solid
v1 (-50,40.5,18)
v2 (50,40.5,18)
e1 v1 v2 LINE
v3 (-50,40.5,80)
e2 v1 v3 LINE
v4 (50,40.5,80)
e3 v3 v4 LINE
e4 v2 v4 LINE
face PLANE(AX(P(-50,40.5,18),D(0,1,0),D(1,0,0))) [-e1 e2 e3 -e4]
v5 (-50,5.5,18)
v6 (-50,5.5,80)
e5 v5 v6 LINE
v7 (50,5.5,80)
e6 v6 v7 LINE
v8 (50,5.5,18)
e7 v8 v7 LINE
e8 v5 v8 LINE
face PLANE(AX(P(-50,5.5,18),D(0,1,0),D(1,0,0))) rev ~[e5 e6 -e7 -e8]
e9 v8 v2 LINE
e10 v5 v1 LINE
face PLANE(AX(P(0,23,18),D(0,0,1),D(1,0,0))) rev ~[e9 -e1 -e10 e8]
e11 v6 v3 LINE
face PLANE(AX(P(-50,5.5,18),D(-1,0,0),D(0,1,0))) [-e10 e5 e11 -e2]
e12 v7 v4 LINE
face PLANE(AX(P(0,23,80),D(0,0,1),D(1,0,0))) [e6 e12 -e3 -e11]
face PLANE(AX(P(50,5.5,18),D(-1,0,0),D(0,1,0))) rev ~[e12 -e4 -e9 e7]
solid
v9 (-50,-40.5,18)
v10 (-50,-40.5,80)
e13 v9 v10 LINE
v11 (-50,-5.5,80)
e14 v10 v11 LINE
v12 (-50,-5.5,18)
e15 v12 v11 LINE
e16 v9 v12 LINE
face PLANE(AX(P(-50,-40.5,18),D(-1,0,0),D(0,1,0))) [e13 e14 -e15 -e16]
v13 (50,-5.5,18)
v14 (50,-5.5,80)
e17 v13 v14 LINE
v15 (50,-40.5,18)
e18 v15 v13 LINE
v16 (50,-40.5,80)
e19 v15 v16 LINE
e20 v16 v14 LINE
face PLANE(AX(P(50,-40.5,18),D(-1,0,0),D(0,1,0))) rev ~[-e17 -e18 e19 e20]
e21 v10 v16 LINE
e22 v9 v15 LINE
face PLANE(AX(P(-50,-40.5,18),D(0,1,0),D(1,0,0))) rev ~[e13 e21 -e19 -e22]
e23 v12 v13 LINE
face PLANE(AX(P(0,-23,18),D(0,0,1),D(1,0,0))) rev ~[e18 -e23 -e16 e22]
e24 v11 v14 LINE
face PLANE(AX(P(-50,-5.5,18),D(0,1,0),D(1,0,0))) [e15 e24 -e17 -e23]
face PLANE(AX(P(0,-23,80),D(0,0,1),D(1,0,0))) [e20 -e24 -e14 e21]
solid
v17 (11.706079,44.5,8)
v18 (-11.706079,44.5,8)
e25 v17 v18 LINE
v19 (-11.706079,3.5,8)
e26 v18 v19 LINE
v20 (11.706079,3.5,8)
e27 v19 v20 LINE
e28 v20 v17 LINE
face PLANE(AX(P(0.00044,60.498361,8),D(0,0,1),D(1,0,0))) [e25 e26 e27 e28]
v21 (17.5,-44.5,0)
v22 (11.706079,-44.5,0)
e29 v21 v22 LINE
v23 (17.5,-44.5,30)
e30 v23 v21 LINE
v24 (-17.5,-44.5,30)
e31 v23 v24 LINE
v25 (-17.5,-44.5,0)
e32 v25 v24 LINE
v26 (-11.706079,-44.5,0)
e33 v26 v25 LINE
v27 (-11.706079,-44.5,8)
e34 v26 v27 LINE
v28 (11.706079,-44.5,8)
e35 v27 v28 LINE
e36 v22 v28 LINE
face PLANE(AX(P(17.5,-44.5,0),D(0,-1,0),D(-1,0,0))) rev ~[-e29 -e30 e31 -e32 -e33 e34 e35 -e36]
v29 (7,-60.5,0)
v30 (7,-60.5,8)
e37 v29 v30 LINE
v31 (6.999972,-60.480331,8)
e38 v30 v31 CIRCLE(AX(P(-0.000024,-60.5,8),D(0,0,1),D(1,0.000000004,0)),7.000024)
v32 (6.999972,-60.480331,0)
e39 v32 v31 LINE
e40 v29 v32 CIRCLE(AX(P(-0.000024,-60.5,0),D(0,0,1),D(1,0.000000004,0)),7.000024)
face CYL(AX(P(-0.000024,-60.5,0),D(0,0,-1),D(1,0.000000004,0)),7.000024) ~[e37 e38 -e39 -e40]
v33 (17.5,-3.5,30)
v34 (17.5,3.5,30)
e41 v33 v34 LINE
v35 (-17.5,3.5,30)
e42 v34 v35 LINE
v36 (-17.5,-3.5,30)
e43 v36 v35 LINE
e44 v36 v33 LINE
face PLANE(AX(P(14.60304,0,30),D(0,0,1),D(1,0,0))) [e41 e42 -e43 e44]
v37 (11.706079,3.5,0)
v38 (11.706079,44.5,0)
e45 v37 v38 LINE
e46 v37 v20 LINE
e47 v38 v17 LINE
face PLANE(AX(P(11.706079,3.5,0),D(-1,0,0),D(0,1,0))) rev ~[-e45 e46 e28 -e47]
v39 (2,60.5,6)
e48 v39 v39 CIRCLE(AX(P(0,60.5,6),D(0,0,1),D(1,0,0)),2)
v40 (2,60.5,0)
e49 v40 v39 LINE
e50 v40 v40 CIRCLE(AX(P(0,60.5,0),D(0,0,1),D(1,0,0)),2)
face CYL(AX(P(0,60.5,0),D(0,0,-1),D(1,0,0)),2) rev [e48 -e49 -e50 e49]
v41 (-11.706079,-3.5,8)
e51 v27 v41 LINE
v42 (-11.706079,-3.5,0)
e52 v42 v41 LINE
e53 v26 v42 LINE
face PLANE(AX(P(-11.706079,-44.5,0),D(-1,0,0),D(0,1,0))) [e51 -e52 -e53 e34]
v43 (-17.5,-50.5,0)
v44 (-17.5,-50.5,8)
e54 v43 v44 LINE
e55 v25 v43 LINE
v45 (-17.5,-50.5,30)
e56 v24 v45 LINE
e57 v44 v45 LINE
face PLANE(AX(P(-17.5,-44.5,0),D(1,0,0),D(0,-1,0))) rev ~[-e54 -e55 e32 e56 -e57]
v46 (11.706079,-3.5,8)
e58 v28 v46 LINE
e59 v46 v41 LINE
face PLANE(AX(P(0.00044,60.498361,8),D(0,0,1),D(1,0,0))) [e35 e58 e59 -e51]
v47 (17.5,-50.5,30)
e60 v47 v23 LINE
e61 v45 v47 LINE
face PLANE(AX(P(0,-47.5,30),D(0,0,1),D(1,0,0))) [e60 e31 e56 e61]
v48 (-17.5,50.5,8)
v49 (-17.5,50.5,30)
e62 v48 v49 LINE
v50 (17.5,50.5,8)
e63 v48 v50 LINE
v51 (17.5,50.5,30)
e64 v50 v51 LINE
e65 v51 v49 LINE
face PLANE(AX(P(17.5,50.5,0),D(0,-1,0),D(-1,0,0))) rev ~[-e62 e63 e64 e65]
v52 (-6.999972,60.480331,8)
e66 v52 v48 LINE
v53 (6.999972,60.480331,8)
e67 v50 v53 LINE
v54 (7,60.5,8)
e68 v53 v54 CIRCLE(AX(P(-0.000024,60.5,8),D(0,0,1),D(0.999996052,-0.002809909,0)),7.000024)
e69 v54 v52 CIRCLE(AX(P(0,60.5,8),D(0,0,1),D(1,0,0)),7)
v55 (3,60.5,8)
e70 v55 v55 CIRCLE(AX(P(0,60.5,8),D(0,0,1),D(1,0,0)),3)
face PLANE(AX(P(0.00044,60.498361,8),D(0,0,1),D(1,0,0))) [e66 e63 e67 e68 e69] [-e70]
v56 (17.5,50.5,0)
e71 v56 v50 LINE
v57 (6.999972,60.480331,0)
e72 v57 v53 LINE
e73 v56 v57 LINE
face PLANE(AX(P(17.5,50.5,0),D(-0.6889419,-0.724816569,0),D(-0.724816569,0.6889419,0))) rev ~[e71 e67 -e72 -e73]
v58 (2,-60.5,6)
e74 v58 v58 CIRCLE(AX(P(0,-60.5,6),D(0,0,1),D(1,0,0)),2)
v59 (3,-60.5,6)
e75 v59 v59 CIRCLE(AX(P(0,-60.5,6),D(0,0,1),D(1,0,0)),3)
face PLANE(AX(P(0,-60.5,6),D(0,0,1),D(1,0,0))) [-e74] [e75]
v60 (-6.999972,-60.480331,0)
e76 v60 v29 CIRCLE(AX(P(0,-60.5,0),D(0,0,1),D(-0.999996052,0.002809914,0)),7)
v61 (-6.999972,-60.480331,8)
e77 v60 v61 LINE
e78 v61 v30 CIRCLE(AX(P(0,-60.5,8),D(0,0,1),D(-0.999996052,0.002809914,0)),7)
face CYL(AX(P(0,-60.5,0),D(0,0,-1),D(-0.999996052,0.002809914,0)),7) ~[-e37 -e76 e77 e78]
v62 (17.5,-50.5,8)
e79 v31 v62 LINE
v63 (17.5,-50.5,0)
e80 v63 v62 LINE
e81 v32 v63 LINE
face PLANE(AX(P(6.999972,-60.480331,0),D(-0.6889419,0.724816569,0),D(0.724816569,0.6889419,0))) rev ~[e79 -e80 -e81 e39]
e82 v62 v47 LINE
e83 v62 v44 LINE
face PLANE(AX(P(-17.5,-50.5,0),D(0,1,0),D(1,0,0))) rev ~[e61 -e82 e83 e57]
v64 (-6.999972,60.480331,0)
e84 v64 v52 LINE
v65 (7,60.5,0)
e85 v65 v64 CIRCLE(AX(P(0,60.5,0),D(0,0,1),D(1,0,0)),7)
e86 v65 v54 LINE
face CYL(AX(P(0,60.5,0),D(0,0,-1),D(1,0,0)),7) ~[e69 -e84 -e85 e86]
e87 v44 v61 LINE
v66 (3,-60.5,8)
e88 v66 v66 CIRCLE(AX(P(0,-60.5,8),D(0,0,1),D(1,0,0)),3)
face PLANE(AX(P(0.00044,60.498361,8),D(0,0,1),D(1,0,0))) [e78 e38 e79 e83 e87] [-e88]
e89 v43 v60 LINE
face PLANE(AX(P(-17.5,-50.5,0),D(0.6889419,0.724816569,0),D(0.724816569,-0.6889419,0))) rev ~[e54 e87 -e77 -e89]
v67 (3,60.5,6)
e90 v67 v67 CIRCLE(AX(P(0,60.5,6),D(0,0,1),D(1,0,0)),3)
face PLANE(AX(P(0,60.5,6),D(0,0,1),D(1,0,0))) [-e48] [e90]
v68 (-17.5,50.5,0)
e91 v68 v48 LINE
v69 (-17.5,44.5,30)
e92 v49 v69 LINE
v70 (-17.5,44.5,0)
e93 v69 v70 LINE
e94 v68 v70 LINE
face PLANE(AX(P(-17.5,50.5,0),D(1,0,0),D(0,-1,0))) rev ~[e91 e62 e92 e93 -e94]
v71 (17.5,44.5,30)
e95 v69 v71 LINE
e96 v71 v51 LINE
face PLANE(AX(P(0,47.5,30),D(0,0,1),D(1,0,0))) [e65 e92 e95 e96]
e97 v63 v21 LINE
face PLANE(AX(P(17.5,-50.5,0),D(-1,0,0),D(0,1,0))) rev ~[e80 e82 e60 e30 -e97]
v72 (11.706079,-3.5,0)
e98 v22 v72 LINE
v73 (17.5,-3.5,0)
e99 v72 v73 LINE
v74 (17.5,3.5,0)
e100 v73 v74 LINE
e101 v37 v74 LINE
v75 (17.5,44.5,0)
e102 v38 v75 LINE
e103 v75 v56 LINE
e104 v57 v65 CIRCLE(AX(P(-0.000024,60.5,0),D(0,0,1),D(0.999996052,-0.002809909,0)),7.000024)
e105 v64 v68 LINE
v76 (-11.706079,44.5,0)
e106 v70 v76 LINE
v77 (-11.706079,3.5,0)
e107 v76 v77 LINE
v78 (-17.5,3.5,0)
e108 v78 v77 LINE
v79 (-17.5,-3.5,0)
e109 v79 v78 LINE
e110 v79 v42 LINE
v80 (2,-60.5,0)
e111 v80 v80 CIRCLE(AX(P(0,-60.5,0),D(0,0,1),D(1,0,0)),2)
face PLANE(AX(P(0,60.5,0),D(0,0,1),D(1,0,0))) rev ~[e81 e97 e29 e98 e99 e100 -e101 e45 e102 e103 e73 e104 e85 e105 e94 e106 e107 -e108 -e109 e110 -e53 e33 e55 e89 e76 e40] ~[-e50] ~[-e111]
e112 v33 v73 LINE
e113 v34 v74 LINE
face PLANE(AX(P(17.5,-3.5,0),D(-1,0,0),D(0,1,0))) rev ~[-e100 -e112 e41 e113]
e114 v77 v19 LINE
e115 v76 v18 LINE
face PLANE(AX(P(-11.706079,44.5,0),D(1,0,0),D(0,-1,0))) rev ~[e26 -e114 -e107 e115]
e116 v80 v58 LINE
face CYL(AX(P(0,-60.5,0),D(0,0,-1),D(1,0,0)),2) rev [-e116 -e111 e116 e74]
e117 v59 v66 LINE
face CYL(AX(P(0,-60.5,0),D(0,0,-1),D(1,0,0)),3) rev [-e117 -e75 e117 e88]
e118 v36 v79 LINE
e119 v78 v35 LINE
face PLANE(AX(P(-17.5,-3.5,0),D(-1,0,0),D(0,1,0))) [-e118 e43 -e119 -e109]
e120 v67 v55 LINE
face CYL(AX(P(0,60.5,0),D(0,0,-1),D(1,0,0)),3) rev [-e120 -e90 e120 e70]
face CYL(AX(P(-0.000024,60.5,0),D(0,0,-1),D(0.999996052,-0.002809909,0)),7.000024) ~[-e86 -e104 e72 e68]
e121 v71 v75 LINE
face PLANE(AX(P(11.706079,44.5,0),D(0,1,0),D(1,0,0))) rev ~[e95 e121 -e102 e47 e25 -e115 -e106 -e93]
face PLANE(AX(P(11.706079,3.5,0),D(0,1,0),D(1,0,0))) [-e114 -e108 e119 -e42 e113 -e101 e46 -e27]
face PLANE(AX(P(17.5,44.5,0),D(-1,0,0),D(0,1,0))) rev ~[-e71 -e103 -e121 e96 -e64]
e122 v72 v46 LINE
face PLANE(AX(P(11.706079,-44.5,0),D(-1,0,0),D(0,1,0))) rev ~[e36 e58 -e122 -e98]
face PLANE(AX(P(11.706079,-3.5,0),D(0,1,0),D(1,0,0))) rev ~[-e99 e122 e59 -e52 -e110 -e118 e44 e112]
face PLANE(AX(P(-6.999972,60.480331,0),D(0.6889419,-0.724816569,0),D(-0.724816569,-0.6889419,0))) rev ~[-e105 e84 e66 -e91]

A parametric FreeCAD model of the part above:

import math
import FreeCAD as App
import Part
import Sketcher

doc = App.newDocument("Part")
params = doc.addObject("Spreadsheet::Sheet", "Params")
for row, (alias, value) in enumerate([
    ("sketch1_width", "100 mm"),
    ("sketch1_height", "35 mm"),
    ("pad1_length", "62 mm"),
    ("sketch2_width", "100 mm"),
    ("sketch2_height", "35 mm"),
    ("pad2_length", "62 mm"),
    ("sketch3_diameter", "6 mm"),
    ("sketch3_radius", "7 mm"),
    ("sketch3_height", "6 mm"),
    ("sketch3_height2", "41 mm"),
    ("sketch3_height3", "7 mm"),
    ("pad3_length", "8 mm"),
    ("sketch4_width", "35 mm"),
    ("sketch4_height", "7 mm"),
    ("sketch4_height2", "6 mm"),
    ("pad4_length", "30 mm"),
    ("sketch5_diameter", "6 mm"),
    ("sketch5_diameter2", "4 mm"),
    ("pad5_length", "6 mm"),
], start=1):
    params.set(f"A{row}", alias)
    params.set(f"B{row}", "=" + value)
    params.setAlias(f"B{row}", alias)

body = doc.addObject("PartDesign::Body", "Body")

sketch1 = body.newObject("Sketcher::SketchObject", "Sketch")
sketch1.AttachmentSupport = (doc.getObject("XY_Plane"), [""])
sketch1.MapMode = "FlatFace"
sketch1.AttachmentOffset = App.Placement(App.Vector(0, 0, 18), App.Rotation())
sketch1.addGeometry([
    Part.LineSegment(App.Vector(-50, 40, 0), App.Vector(-50, 6, 0)),
    Part.LineSegment(App.Vector(-50, 6, 0), App.Vector(50, 6, 0)),
    Part.LineSegment(App.Vector(50, 6, 0), App.Vector(50, 40, 0)),
    Part.LineSegment(App.Vector(50, 40, 0), App.Vector(-50, 40, 0)),
], False)
sketch1.addConstraint([
    Sketcher.Constraint("Coincident", 0, 2, 1, 1),
    Sketcher.Constraint("Coincident", 1, 2, 2, 1),
    Sketcher.Constraint("Coincident", 2, 2, 3, 1),
    Sketcher.Constraint("Coincident", 3, 2, 0, 1),
    Sketcher.Constraint("Vertical", 0),
    Sketcher.Constraint("Horizontal", 1),
    Sketcher.Constraint("Vertical", 2),
    Sketcher.Constraint("Horizontal", 3),
    Sketcher.Constraint("DistanceX", 1, 1, 1, 2, 100.0),
    Sketcher.Constraint("DistanceY", 0, 2, 0, 1, 35.0),
    Sketcher.Constraint("DistanceX", 0, 2, -1, 1, 50.0),
    Sketcher.Constraint("DistanceY", -1, 1, 0, 2, 5.5),
])
sketch1.setExpression("Constraints[8]", "Params.sketch1_width")
sketch1.setExpression("Constraints[9]", "Params.sketch1_height")
pad1 = body.newObject("PartDesign::Pad", "Pad")
pad1.Profile = sketch1
pad1.setExpression("Length", "Params.pad1_length")
body2 = doc.addObject("PartDesign::Body", "Body001")

sketch2 = body2.newObject("Sketcher::SketchObject", "Sketch001")
sketch2.AttachmentSupport = (doc.getObject("XY_Plane001"), [""])
sketch2.MapMode = "FlatFace"
sketch2.AttachmentOffset = App.Placement(App.Vector(0, 0, 18), App.Rotation())
sketch2.addGeometry([
    Part.LineSegment(App.Vector(-50, -6, 0), App.Vector(-50, -40, 0)),
    Part.LineSegment(App.Vector(-50, -40, 0), App.Vector(50, -40, 0)),
    Part.LineSegment(App.Vector(50, -40, 0), App.Vector(50, -6, 0)),
    Part.LineSegment(App.Vector(50, -6, 0), App.Vector(-50, -6, 0)),
], False)
sketch2.addConstraint([
    Sketcher.Constraint("Coincident", 0, 2, 1, 1),
    Sketcher.Constraint("Coincident", 1, 2, 2, 1),
    Sketcher.Constraint("Coincident", 2, 2, 3, 1),
    Sketcher.Constraint("Coincident", 3, 2, 0, 1),
    Sketcher.Constraint("Vertical", 0),
    Sketcher.Constraint("Horizontal", 1),
    Sketcher.Constraint("Vertical", 2),
    Sketcher.Constraint("Horizontal", 3),
    Sketcher.Constraint("DistanceX", 1, 1, 1, 2, 100.0),
    Sketcher.Constraint("DistanceY", 0, 2, 0, 1, 35.0),
    Sketcher.Constraint("DistanceX", 0, 2, -1, 1, 50.0),
    Sketcher.Constraint("DistanceY", 0, 2, -1, 1, 40.5),
])
sketch2.setExpression("Constraints[8]", "Params.sketch2_width")
sketch2.setExpression("Constraints[9]", "Params.sketch2_height")
pad2 = body2.newObject("PartDesign::Pad", "Pad001")
pad2.Profile = sketch2
pad2.setExpression("Length", "Params.pad2_length")
body3 = doc.addObject("PartDesign::Body", "Body002")

sketch3 = body3.newObject("Sketcher::SketchObject", "Sketch002")
sketch3.AttachmentSupport = (doc.getObject("XY_Plane002"), [""])
sketch3.MapMode = "FlatFace"
sketch3.addGeometry([
    Part.ArcOfCircle(Part.Circle(App.Vector(0, 60.5, 0), App.Vector(0, 0, 1), 7), math.radians(0), math.radians(180)),
    Part.LineSegment(App.Vector(-7, 60.48, 0), App.Vector(-17.5, 50.5, 0)),
    Part.LineSegment(App.Vector(-17.5, 50.5, 0), App.Vector(-17.5, 44.5, 0)),
    Part.LineSegment(App.Vector(-17.5, 44.5, 0), App.Vector(-11.706, 44.5, 0)),
    Part.LineSegment(App.Vector(-11.706, 44.5, 0), App.Vector(-11.706, 3.5, 0)),
    Part.LineSegment(App.Vector(-11.706, 3.5, 0), App.Vector(-17.5, 3.5, 0)),
    Part.LineSegment(App.Vector(-17.5, 3.5, 0), App.Vector(-17.5, -3.5, 0)),
    Part.LineSegment(App.Vector(-17.5, -3.5, 0), App.Vector(-11.706, -3.5, 0)),
    Part.LineSegment(App.Vector(-11.706, -3.5, 0), App.Vector(-11.706, -44.5, 0)),
    Part.LineSegment(App.Vector(-11.706, -44.5, 0), App.Vector(-17.5, -44.5, 0)),
    Part.LineSegment(App.Vector(-17.5, -44.5, 0), App.Vector(-17.5, -50.5, 0)),
    Part.LineSegment(App.Vector(-17.5, -50.5, 0), App.Vector(-7, -60.48, 0)),
    Part.ArcOfCircle(Part.Circle(App.Vector(0, -60.5, 0), App.Vector(0, 0, 1), 7), math.radians(180), math.radians(360)),
    Part.ArcOfCircle(Part.Circle(App.Vector(0, -60.5, 0), App.Vector(0, 0, 1), 7), math.radians(0), math.radians(0.16)),
    Part.LineSegment(App.Vector(7, -60.48, 0), App.Vector(17.5, -50.5, 0)),
    Part.LineSegment(App.Vector(17.5, -50.5, 0), App.Vector(17.5, -44.5, 0)),
    Part.LineSegment(App.Vector(17.5, -44.5, 0), App.Vector(11.706, -44.5, 0)),
    Part.LineSegment(App.Vector(11.706, -44.5, 0), App.Vector(11.706, -3.5, 0)),
    Part.LineSegment(App.Vector(11.706, -3.5, 0), App.Vector(17.5, -3.5, 0)),
    Part.LineSegment(App.Vector(17.5, -3.5, 0), App.Vector(17.5, 3.5, 0)),
    Part.LineSegment(App.Vector(17.5, 3.5, 0), App.Vector(11.706, 3.5, 0)),
    Part.LineSegment(App.Vector(11.706, 3.5, 0), App.Vector(11.706, 44.5, 0)),
    Part.LineSegment(App.Vector(11.706, 44.5, 0), App.Vector(17.5, 44.5, 0)),
    Part.LineSegment(App.Vector(17.5, 44.5, 0), App.Vector(17.5, 50.5, 0)),
    Part.LineSegment(App.Vector(17.5, 50.5, 0), App.Vector(7, 60.48, 0)),
    Part.ArcOfCircle(Part.Circle(App.Vector(0, 60.5, 0), App.Vector(0, 0, 1), 7), math.radians(-0.16), math.radians(0)),
    Part.Circle(App.Vector(0, -60.5, 0), App.Vector(0, 0, 1), 3),
    Part.Circle(App.Vector(0, 60.5, 0), App.Vector(0, 0, 1), 3),
], False)
sketch3.addConstraint([
    Sketcher.Constraint("Coincident", 0, 2, 1, 1),
    Sketcher.Constraint("Coincident", 1, 2, 2, 1),
    Sketcher.Constraint("Coincident", 2, 2, 3, 1),
    Sketcher.Constraint("Coincident", 3, 2, 4, 1),
    Sketcher.Constraint("Coincident", 4, 2, 5, 1),
    Sketcher.Constraint("Coincident", 5, 2, 6, 1),
    Sketcher.Constraint("Coincident", 6, 2, 7, 1),
    Sketcher.Constraint("Coincident", 7, 2, 8, 1),
    Sketcher.Constraint("Coincident", 8, 2, 9, 1),
    Sketcher.Constraint("Coincident", 9, 2, 10, 1),
    Sketcher.Constraint("Coincident", 10, 2, 11, 1),
    Sketcher.Constraint("Coincident", 11, 2, 12, 1),
    Sketcher.Constraint("Tangent", 12, 2, 13, 1),
    Sketcher.Constraint("Coincident", 13, 2, 14, 1),
    Sketcher.Constraint("Coincident", 14, 2, 15, 1),
    Sketcher.Constraint("Coincident", 15, 2, 16, 1),
    Sketcher.Constraint("Coincident", 16, 2, 17, 1),
    Sketcher.Constraint("Coincident", 17, 2, 18, 1),
    Sketcher.Constraint("Coincident", 18, 2, 19, 1),
    Sketcher.Constraint("Coincident", 19, 2, 20, 1),
    Sketcher.Constraint("Coincident", 20, 2, 21, 1),
    Sketcher.Constraint("Coincident", 21, 2, 22, 1),
    Sketcher.Constraint("Coincident", 22, 2, 23, 1),
    Sketcher.Constraint("Coincident", 23, 2, 24, 1),
    Sketcher.Constraint("Coincident", 24, 2, 25, 1),
    Sketcher.Constraint("Tangent", 25, 2, 0, 1),
    Sketcher.Constraint("Vertical", 2),
    Sketcher.Constraint("Horizontal", 3),
    Sketcher.Constraint("Vertical", 4),
    Sketcher.Constraint("Horizontal", 5),
    Sketcher.Constraint("Vertical", 6),
    Sketcher.Constraint("Horizontal", 7),
    Sketcher.Constraint("Vertical", 8),
    Sketcher.Constraint("Horizontal", 9),
    Sketcher.Constraint("Vertical", 10),
    Sketcher.Constraint("Vertical", 15),
    Sketcher.Constraint("Horizontal", 16),
    Sketcher.Constraint("Vertical", 17),
    Sketcher.Constraint("Horizontal", 18),
    Sketcher.Constraint("Vertical", 19),
    Sketcher.Constraint("Horizontal", 20),
    Sketcher.Constraint("Vertical", 21),
    Sketcher.Constraint("Horizontal", 22),
    Sketcher.Constraint("Vertical", 23),
    Sketcher.Constraint("Coincident", 26, 3, 12, 3),
    Sketcher.Constraint("Coincident", 27, 3, 0, 3),
    Sketcher.Constraint("Equal", 0, 12),
    Sketcher.Constraint("Equal", 13, 25),
    Sketcher.Constraint("Equal", 26, 27),
    Sketcher.Constraint("Symmetric", 0, 3, 12, 3, -1, 1),
    Sketcher.Constraint("Symmetric", 1, 2, 14, 2, -1, 1),
    Sketcher.Constraint("Symmetric", 3, 2, 16, 2, -1, 1),
    Sketcher.Constraint("Symmetric", 5, 2, 18, 2, -1, 1),
    Sketcher.Constraint("Symmetric", 7, 2, 20, 2, -1, 1),
    Sketcher.Constraint("Symmetric", 9, 2, 22, 2, -1, 1),
    Sketcher.Constraint("Symmetric", 11, 2, 13, 2, -2),
    Sketcher.Constraint("Symmetric", 10, 2, 14, 2, -2),
    Sketcher.Constraint("Symmetric", 8, 2, 16, 2, -2),
    Sketcher.Constraint("Parallel", 1, 14),
    Sketcher.Constraint("Parallel", 11, 24),
    Sketcher.Constraint("Horizontal", 26, 3, 12, 2),
    Sketcher.Constraint("Horizontal", 7, 2, 17, 2),
    Sketcher.Constraint("Horizontal", 1, 2, 23, 2),
    Sketcher.Constraint("Horizontal", 27, 3, 25, 2),
    Sketcher.Constraint("Vertical", 2, 2, 5, 2),
    Sketcher.Constraint("Diameter", 26, 6.0),
    Sketcher.Constraint("Radius", 0, 7.0),
    Sketcher.Constraint("DistanceY", 2, 2, 2, 1, 6.0),
    Sketcher.Constraint("DistanceY", 4, 2, 4, 1, 41.0),
    Sketcher.Constraint("DistanceY", 6, 2, 6, 1, 7.0),
    Sketcher.Constraint("DistanceY", 12, 3, 0, 3, 121.0),
    Sketcher.Constraint("DistanceX", 6, 2, 18, 2, 35.0),
    Sketcher.Constraint("Radius", 13, 7.000024),
    Sketcher.Constraint("DistanceX", 3, 1, 3, 2, 5.793921),
    Sketcher.Constraint("Distance", 1, 14.486462),
])
sketch3.setExpression("Constraints[65]", "Params.sketch3_diameter")
sketch3.setExpression("Constraints[66]", "Params.sketch3_radius")
sketch3.setExpression("Constraints[67]", "Params.sketch3_height")
sketch3.setExpression("Constraints[68]", "Params.sketch3_height2")
sketch3.setExpression("Constraints[69]", "Params.sketch3_height3")
pad3 = body3.newObject("PartDesign::Pad", "Pad002")
pad3.Profile = sketch3
pad3.setExpression("Length", "Params.pad3_length")

sketch4 = body3.newObject("Sketcher::SketchObject", "Sketch003")
sketch4.AttachmentSupport = (doc.getObject("XY_Plane002"), [""])
sketch4.MapMode = "FlatFace"
sketch4.addGeometry([
    Part.LineSegment(App.Vector(18, -4, 0), App.Vector(18, 4, 0)),
    Part.LineSegment(App.Vector(18, 4, 0), App.Vector(-18, 4, 0)),
    Part.LineSegment(App.Vector(-18, 4, 0), App.Vector(-18, -4, 0)),
    Part.LineSegment(App.Vector(-18, -4, 0), App.Vector(18, -4, 0)),
    Part.LineSegment(App.Vector(18, -44, 0), App.Vector(-18, -44, 0)),
    Part.LineSegment(App.Vector(-18, -44, 0), App.Vector(-18, -50, 0)),
    Part.LineSegment(App.Vector(-18, -50, 0), App.Vector(18, -50, 0)),
    Part.LineSegment(App.Vector(18, -50, 0), App.Vector(18, -44, 0)),
    Part.LineSegment(App.Vector(18, 44, 0), App.Vector(18, 50, 0)),
    Part.LineSegment(App.Vector(18, 50, 0), App.Vector(-18, 50, 0)),
    Part.LineSegment(App.Vector(-18, 50, 0), App.Vector(-18, 44, 0)),
    Part.LineSegment(App.Vector(-18, 44, 0), App.Vector(18, 44, 0)),
], False)
sketch4.addConstraint([
    Sketcher.Constraint("Coincident", 0, 2, 1, 1),
    Sketcher.Constraint("Coincident", 1, 2, 2, 1),
    Sketcher.Constraint("Coincident", 2, 2, 3, 1),
    Sketcher.Constraint("Coincident", 3, 2, 0, 1),
    Sketcher.Constraint("Coincident", 4, 2, 5, 1),
    Sketcher.Constraint("Coincident", 5, 2, 6, 1),
    Sketcher.Constraint("Coincident", 6, 2, 7, 1),
    Sketcher.Constraint("Coincident", 7, 2, 4, 1),
    Sketcher.Constraint("Coincident", 8, 2, 9, 1),
    Sketcher.Constraint("Coincident", 9, 2, 10, 1),
    Sketcher.Constraint("Coincident", 10, 2, 11, 1),
    Sketcher.Constraint("Coincident", 11, 2, 8, 1),
    Sketcher.Constraint("Vertical", 0),
    Sketcher.Constraint("Horizontal", 1),
    Sketcher.Constraint("Vertical", 2),
    Sketcher.Constraint("Horizontal", 3),
    Sketcher.Constraint("Horizontal", 4),
    Sketcher.Constraint("Vertical", 5),
    Sketcher.Constraint("Horizontal", 6),
    Sketcher.Constraint("Vertical", 7),
    Sketcher.Constraint("Vertical", 8),
    Sketcher.Constraint("Horizontal", 9),
    Sketcher.Constraint("Vertical", 10),
    Sketcher.Constraint("Horizontal", 11),
    Sketcher.Constraint("Symmetric", 0, 2, 2, 2, -1, 1),
    Sketcher.Constraint("Symmetric", 5, 2, 8, 2, -1, 1),
    Sketcher.Constraint("Symmetric", 7, 2, 10, 2, -1, 1),
    Sketcher.Constraint("Vertical", 2, 2, 4, 2),
    Sketcher.Constraint("Vertical", 3, 2, 6, 2),
    Sketcher.Constraint("DistanceX", 1, 2, 1, 1, 35.0),
    Sketcher.Constraint("DistanceY", 0, 1, 0, 2, 7.0),
    Sketcher.Constraint("DistanceY", 5, 2, 5, 1, 6.0),
    Sketcher.Constraint("DistanceY", 4, 2, 2, 2, 41.0),
])
sketch4.setExpression("Constraints[29]", "Params.sketch4_width")
sketch4.setExpression("Constraints[30]", "Params.sketch4_height")
sketch4.setExpression("Constraints[31]", "Params.sketch4_height2")
pad4 = body3.newObject("PartDesign::Pad", "Pad003")
pad4.Profile = sketch4
pad4.setExpression("Length", "Params.pad4_length")

sketch5 = body3.newObject("Sketcher::SketchObject", "Sketch004")
sketch5.AttachmentSupport = (doc.getObject("XY_Plane002"), [""])
sketch5.MapMode = "FlatFace"
sketch5.addGeometry([
    Part.Circle(App.Vector(0, 60.5, 0), App.Vector(0, 0, 1), 3),
    Part.Circle(App.Vector(0, 60.5, 0), App.Vector(0, 0, 1), 2),
    Part.Circle(App.Vector(0, -60.5, 0), App.Vector(0, 0, 1), 3),
    Part.Circle(App.Vector(0, -60.5, 0), App.Vector(0, 0, 1), 2),
], False)
sketch5.addConstraint([
    Sketcher.Constraint("Coincident", 1, 3, 0, 3),
    Sketcher.Constraint("Coincident", 3, 3, 2, 3),
    Sketcher.Constraint("Equal", 0, 2),
    Sketcher.Constraint("Equal", 1, 3),
    Sketcher.Constraint("Symmetric", 0, 3, 2, 3, -1, 1),
    Sketcher.Constraint("PointOnObject", 0, 3, -2),
    Sketcher.Constraint("Diameter", 0, 6.0),
    Sketcher.Constraint("Diameter", 1, 4.0),
    Sketcher.Constraint("DistanceY", 2, 3, 0, 3, 121.0),
])
sketch5.setExpression("Constraints[6]", "Params.sketch5_diameter")
sketch5.setExpression("Constraints[7]", "Params.sketch5_diameter2")
pad5 = body3.newObject("PartDesign::Pad", "Pad004")
pad5.Profile = sketch5
pad5.setExpression("Length", "Params.pad5_length")

doc.recompute()
